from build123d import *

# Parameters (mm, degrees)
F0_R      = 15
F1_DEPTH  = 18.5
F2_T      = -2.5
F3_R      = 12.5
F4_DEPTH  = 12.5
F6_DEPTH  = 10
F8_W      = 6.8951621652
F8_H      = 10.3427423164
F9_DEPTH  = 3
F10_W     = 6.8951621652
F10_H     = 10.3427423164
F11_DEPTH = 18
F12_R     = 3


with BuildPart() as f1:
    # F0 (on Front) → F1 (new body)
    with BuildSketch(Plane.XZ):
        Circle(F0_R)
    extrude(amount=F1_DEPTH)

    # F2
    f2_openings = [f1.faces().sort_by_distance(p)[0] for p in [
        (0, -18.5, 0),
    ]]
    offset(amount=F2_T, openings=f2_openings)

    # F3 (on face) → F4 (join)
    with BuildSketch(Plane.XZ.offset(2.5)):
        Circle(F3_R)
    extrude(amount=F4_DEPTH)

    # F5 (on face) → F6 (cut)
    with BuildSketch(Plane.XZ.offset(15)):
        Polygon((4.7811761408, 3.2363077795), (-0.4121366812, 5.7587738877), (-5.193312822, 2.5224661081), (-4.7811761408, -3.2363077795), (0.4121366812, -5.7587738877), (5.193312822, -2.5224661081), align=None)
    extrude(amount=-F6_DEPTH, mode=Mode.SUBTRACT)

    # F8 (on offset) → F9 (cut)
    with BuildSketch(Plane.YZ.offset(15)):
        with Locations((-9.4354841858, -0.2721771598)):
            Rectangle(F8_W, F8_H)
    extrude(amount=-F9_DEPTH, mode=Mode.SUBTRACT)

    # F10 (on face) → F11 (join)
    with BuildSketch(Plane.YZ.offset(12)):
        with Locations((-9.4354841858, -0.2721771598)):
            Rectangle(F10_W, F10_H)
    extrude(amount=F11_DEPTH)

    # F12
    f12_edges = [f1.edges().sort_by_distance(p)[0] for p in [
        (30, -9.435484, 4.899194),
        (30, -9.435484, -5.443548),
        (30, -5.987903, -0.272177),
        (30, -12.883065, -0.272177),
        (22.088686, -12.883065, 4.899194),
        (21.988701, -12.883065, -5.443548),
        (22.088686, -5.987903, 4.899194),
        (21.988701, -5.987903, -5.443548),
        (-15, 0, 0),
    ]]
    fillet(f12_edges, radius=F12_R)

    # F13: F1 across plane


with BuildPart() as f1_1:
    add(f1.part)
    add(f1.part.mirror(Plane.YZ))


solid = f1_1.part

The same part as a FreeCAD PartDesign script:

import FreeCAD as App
import Part
import Sketcher

V = App.Vector
Q = App.Units.Quantity


def edges_at(feature, points):
    """Names of the edges that pass closest to the given points."""
    edges = feature.Shape.Edges
    near = lambda p: min(range(len(edges)), key=lambda i: edges[i].distToShape(Part.Vertex(*p))[0])
    return sorted({f"Edge{near(p) + 1}" for p in points})


def faces_at(feature, points):
    """Names of the faces that lie closest to the given points."""
    faces = feature.Shape.Faces
    near = lambda p: min(range(len(faces)), key=lambda i: faces[i].distToShape(Part.Vertex(*p))[0])
    return sorted({f"Face{near(p) + 1}" for p in points})

doc = App.newDocument("Part")
body = doc.addObject("PartDesign::Body", "Body")

# Sketch on XZ plane
sketch1 = body.newObject("Sketcher::SketchObject", "Sketch")
sketch1.AttachmentSupport = (doc.getObject("XZ_Plane"), [""])
sketch1.MapMode = "FlatFace"
sketch1.addGeometry(Part.Circle(V(0, 0, 0), V(0, 0, 1), 15), False)
sketch1.addConstraint([
    Sketcher.Constraint("Coincident", 0, 3, -1, 1),
    Sketcher.Constraint("Diameter", 0, Q("30 mm")),
])
pad1 = body.newObject("PartDesign::Pad", "Pad")
pad1.Profile = sketch1
pad1.Length = 18.5
doc.recompute()

thickness = body.newObject("PartDesign::Thickness", "Thickness")
thickness.Base = (pad1, faces_at(pad1, [(0, -18.5, 0)]))
thickness.Value = 2.5
thickness.Reversed = True
thickness.Join = "Arc"

# Sketch on XZ plane
sketch2 = body.newObject("Sketcher::SketchObject", "Sketch001")
sketch2.AttachmentSupport = (doc.getObject("XZ_Plane"), [""])
sketch2.MapMode = "FlatFace"
sketch2.AttachmentOffset = App.Placement(V(0, 0, 2.5), App.Rotation())
sketch2.addGeometry(Part.Circle(V(0, 0, 0), V(0, 0, 1), 12), False)
sketch2.addConstraint([
    Sketcher.Constraint("Coincident", 0, 3, -1, 1),
    Sketcher.Constraint("Diameter", 0, Q("25 mm")),
])
pad2 = body.newObject("PartDesign::Pad", "Pad001")
pad2.Profile = sketch2
pad2.Length = 12.5

# Sketch on XZ plane
sketch3 = body.newObject("Sketcher::SketchObject", "Sketch002")
sketch3.AttachmentSupport = (doc.getObject("XZ_Plane"), [""])
sketch3.MapMode = "FlatFace"
sketch3.AttachmentOffset = App.Placement(V(0, 0, 15), App.Rotation())
sketch3.addGeometry([
    Part.LineSegment(V(5, 3, 0), V(0, 6, 0)),  # 0
    Part.LineSegment(V(0, 6, 0), V(-5, 3, 0)),  # 1
    Part.LineSegment(V(-5, 3, 0), V(-5, -3, 0)),  # 2
    Part.LineSegment(V(-5, -3, 0), V(0, -6, 0)),  # 3
    Part.LineSegment(V(0, -6, 0), V(5, -3, 0)),  # 4
    Part.LineSegment(V(5, -3, 0), V(5, 3, 0)),  # 5
], False)
sketch3.addConstraint([
    Sketcher.Constraint("Coincident", 0, 2, 1, 1),
    Sketcher.Constraint("Coincident", 1, 2, 2, 1),
    Sketcher.Constraint("Coincident", 2, 2, 3, 1),
    Sketcher.Constraint("Coincident", 3, 2, 4, 1),
    Sketcher.Constraint("Coincident", 4, 2, 5, 1),
    Sketcher.Constraint("Coincident", 5, 2, 0, 1),
    Sketcher.Constraint("Symmetric", 0, 2, 3, 2, -1, 1),
    Sketcher.Constraint("Symmetric", 1, 2, 4, 2, -1, 1),
    Sketcher.Constraint("Symmetric", 2, 2, 5, 2, -1, 1),
    Sketcher.Constraint("Equal", 0, 1),
    Sketcher.Constraint("Equal", 1, 2),
    Sketcher.Constraint("DistanceX", 2, 2, 0, 2, Q("4.369039 mm")),
    Sketcher.Constraint("DistanceY", 2, 2, 0, 2, Q("8.995082 mm")),
    Sketcher.Constraint("DistanceX", 1, 2, 3, 2, Q("5.60545 mm")),
    Sketcher.Constraint("DistanceY", 3, 2, 1, 2, Q("8.28124 mm")),
])
pocket1 = body.newObject("PartDesign::Pocket", "Pocket")
pocket1.Profile = sketch3
pocket1.Length = 10

# Sketch on YZ plane
sketch4 = body.newObject("Sketcher::SketchObject", "Sketch003")
sketch4.AttachmentSupport = (doc.getObject("YZ_Plane"), [""])
sketch4.MapMode = "FlatFace"
sketch4.AttachmentOffset = App.Placement(V(0, 0, 15), App.Rotation())
sketch4.addGeometry([
    Part.LineSegment(V(-13, 5, 0), V(-13, -5, 0)),
    Part.LineSegment(V(-13, -5, 0), V(-6, -5, 0)),
    Part.LineSegment(V(-6, -5, 0), V(-6, 5, 0)),
    Part.LineSegment(V(-6, 5, 0), V(-13, 5, 0)),
], False)
sketch4.addConstraint([
    Sketcher.Constraint("Coincident", 0, 2, 1, 1),
    Sketcher.Constraint("Coincident", 1, 2, 2, 1),
    Sketcher.Constraint("Coincident", 2, 2, 3, 1),
    Sketcher.Constraint("Coincident", 3, 2, 0, 1),
    Sketcher.Constraint("Vertical", 0),
    Sketcher.Constraint("Horizontal", 1),
    Sketcher.Constraint("Vertical", 2),
    Sketcher.Constraint("Horizontal", 3),
    Sketcher.Constraint("DistanceX", 1, 1, 1, 2, Q("6.895162 mm")),
    Sketcher.Constraint("DistanceY", 0, 2, 0, 1, Q("10.342742 mm")),
    Sketcher.Constraint("DistanceY", 0, 2, -1, 1, Q("5.443548 mm")),
    Sketcher.Constraint("DistanceX", 0, 2, -1, 1, Q("12.883065 mm")),
])
pocket2 = body.newObject("PartDesign::Pocket", "Pocket001")
pocket2.Profile = sketch4
pocket2.Length = 3

# Sketch on YZ plane
sketch5 = body.newObject("Sketcher::SketchObject", "Sketch004")
sketch5.AttachmentSupport = (doc.getObject("YZ_Plane"), [""])
sketch5.MapMode = "FlatFace"
sketch5.AttachmentOffset = App.Placement(V(0, 0, 12), App.Rotation())
sketch5.addGeometry([
    Part.LineSegment(V(-13, 5, 0), V(-13, -5, 0)),
    Part.LineSegment(V(-13, -5, 0), V(-6, -5, 0)),
    Part.LineSegment(V(-6, -5, 0), V(-6, 5, 0)),
    Part.LineSegment(V(-6, 5, 0), V(-13, 5, 0)),
], False)
sketch5.addConstraint([
    Sketcher.Constraint("Coincident", 0, 2, 1, 1),
    Sketcher.Constraint("Coincident", 1, 2, 2, 1),
    Sketcher.Constraint("Coincident", 2, 2, 3, 1),
    Sketcher.Constraint("Coincident", 3, 2, 0, 1),
    Sketcher.Constraint("Vertical", 0),
    Sketcher.Constraint("Horizontal", 1),
    Sketcher.Constraint("Vertical", 2),
    Sketcher.Constraint("Horizontal", 3),
    Sketcher.Constraint("DistanceX", 1, 1, 1, 2, Q("6.895162 mm")),
    Sketcher.Constraint("DistanceY", 0, 2, 0, 1, Q("10.342742 mm")),
    Sketcher.Constraint("DistanceY", 0, 2, -1, 1, Q("5.443548 mm")),
    Sketcher.Constraint("DistanceX", 0, 2, -1, 1, Q("12.883065 mm")),
])
pad3 = body.newObject("PartDesign::Pad", "Pad002")
pad3.Profile = sketch5
pad3.Length = 18
doc.recompute()

fillet = body.newObject("PartDesign::Fillet", "Fillet")
fillet.Base = (pad3, edges_at(pad3, [
    (30, -9.435, 4.899),
    (30, -9.435, -5.444),
    (30, -5.988, -0.272),
    (30, -12.883, -0.272),
    (22.089, -12.883, 4.899),
    (21.989, -12.883, -5.444),
    (22.089, -5.988, 4.899),
    (21.989, -5.988, -5.444),
    (-15, 0, 0),
]))
fillet.Radius = 3
body2 = doc.addObject("PartDesign::Body", "Body001")
doc.recompute()

body2.BaseFeature = body
doc.recompute()

mirroring = doc.addObject("Part::Mirroring", "Mirroring")
mirroring.Source = body
mirroring.Base = V(0, 0, 0)
mirroring.Normal = V(1, 0, 0)
body3 = doc.addObject("PartDesign::Body", "Body002")
body3.BaseFeature = mirroring
boolean = body2.newObject("PartDesign::Boolean", "Boolean")
boolean.Type = "Fuse"
boolean.addObjects([body3])
doc.recompute()
mirroring.Visibility = False

doc.recompute()
